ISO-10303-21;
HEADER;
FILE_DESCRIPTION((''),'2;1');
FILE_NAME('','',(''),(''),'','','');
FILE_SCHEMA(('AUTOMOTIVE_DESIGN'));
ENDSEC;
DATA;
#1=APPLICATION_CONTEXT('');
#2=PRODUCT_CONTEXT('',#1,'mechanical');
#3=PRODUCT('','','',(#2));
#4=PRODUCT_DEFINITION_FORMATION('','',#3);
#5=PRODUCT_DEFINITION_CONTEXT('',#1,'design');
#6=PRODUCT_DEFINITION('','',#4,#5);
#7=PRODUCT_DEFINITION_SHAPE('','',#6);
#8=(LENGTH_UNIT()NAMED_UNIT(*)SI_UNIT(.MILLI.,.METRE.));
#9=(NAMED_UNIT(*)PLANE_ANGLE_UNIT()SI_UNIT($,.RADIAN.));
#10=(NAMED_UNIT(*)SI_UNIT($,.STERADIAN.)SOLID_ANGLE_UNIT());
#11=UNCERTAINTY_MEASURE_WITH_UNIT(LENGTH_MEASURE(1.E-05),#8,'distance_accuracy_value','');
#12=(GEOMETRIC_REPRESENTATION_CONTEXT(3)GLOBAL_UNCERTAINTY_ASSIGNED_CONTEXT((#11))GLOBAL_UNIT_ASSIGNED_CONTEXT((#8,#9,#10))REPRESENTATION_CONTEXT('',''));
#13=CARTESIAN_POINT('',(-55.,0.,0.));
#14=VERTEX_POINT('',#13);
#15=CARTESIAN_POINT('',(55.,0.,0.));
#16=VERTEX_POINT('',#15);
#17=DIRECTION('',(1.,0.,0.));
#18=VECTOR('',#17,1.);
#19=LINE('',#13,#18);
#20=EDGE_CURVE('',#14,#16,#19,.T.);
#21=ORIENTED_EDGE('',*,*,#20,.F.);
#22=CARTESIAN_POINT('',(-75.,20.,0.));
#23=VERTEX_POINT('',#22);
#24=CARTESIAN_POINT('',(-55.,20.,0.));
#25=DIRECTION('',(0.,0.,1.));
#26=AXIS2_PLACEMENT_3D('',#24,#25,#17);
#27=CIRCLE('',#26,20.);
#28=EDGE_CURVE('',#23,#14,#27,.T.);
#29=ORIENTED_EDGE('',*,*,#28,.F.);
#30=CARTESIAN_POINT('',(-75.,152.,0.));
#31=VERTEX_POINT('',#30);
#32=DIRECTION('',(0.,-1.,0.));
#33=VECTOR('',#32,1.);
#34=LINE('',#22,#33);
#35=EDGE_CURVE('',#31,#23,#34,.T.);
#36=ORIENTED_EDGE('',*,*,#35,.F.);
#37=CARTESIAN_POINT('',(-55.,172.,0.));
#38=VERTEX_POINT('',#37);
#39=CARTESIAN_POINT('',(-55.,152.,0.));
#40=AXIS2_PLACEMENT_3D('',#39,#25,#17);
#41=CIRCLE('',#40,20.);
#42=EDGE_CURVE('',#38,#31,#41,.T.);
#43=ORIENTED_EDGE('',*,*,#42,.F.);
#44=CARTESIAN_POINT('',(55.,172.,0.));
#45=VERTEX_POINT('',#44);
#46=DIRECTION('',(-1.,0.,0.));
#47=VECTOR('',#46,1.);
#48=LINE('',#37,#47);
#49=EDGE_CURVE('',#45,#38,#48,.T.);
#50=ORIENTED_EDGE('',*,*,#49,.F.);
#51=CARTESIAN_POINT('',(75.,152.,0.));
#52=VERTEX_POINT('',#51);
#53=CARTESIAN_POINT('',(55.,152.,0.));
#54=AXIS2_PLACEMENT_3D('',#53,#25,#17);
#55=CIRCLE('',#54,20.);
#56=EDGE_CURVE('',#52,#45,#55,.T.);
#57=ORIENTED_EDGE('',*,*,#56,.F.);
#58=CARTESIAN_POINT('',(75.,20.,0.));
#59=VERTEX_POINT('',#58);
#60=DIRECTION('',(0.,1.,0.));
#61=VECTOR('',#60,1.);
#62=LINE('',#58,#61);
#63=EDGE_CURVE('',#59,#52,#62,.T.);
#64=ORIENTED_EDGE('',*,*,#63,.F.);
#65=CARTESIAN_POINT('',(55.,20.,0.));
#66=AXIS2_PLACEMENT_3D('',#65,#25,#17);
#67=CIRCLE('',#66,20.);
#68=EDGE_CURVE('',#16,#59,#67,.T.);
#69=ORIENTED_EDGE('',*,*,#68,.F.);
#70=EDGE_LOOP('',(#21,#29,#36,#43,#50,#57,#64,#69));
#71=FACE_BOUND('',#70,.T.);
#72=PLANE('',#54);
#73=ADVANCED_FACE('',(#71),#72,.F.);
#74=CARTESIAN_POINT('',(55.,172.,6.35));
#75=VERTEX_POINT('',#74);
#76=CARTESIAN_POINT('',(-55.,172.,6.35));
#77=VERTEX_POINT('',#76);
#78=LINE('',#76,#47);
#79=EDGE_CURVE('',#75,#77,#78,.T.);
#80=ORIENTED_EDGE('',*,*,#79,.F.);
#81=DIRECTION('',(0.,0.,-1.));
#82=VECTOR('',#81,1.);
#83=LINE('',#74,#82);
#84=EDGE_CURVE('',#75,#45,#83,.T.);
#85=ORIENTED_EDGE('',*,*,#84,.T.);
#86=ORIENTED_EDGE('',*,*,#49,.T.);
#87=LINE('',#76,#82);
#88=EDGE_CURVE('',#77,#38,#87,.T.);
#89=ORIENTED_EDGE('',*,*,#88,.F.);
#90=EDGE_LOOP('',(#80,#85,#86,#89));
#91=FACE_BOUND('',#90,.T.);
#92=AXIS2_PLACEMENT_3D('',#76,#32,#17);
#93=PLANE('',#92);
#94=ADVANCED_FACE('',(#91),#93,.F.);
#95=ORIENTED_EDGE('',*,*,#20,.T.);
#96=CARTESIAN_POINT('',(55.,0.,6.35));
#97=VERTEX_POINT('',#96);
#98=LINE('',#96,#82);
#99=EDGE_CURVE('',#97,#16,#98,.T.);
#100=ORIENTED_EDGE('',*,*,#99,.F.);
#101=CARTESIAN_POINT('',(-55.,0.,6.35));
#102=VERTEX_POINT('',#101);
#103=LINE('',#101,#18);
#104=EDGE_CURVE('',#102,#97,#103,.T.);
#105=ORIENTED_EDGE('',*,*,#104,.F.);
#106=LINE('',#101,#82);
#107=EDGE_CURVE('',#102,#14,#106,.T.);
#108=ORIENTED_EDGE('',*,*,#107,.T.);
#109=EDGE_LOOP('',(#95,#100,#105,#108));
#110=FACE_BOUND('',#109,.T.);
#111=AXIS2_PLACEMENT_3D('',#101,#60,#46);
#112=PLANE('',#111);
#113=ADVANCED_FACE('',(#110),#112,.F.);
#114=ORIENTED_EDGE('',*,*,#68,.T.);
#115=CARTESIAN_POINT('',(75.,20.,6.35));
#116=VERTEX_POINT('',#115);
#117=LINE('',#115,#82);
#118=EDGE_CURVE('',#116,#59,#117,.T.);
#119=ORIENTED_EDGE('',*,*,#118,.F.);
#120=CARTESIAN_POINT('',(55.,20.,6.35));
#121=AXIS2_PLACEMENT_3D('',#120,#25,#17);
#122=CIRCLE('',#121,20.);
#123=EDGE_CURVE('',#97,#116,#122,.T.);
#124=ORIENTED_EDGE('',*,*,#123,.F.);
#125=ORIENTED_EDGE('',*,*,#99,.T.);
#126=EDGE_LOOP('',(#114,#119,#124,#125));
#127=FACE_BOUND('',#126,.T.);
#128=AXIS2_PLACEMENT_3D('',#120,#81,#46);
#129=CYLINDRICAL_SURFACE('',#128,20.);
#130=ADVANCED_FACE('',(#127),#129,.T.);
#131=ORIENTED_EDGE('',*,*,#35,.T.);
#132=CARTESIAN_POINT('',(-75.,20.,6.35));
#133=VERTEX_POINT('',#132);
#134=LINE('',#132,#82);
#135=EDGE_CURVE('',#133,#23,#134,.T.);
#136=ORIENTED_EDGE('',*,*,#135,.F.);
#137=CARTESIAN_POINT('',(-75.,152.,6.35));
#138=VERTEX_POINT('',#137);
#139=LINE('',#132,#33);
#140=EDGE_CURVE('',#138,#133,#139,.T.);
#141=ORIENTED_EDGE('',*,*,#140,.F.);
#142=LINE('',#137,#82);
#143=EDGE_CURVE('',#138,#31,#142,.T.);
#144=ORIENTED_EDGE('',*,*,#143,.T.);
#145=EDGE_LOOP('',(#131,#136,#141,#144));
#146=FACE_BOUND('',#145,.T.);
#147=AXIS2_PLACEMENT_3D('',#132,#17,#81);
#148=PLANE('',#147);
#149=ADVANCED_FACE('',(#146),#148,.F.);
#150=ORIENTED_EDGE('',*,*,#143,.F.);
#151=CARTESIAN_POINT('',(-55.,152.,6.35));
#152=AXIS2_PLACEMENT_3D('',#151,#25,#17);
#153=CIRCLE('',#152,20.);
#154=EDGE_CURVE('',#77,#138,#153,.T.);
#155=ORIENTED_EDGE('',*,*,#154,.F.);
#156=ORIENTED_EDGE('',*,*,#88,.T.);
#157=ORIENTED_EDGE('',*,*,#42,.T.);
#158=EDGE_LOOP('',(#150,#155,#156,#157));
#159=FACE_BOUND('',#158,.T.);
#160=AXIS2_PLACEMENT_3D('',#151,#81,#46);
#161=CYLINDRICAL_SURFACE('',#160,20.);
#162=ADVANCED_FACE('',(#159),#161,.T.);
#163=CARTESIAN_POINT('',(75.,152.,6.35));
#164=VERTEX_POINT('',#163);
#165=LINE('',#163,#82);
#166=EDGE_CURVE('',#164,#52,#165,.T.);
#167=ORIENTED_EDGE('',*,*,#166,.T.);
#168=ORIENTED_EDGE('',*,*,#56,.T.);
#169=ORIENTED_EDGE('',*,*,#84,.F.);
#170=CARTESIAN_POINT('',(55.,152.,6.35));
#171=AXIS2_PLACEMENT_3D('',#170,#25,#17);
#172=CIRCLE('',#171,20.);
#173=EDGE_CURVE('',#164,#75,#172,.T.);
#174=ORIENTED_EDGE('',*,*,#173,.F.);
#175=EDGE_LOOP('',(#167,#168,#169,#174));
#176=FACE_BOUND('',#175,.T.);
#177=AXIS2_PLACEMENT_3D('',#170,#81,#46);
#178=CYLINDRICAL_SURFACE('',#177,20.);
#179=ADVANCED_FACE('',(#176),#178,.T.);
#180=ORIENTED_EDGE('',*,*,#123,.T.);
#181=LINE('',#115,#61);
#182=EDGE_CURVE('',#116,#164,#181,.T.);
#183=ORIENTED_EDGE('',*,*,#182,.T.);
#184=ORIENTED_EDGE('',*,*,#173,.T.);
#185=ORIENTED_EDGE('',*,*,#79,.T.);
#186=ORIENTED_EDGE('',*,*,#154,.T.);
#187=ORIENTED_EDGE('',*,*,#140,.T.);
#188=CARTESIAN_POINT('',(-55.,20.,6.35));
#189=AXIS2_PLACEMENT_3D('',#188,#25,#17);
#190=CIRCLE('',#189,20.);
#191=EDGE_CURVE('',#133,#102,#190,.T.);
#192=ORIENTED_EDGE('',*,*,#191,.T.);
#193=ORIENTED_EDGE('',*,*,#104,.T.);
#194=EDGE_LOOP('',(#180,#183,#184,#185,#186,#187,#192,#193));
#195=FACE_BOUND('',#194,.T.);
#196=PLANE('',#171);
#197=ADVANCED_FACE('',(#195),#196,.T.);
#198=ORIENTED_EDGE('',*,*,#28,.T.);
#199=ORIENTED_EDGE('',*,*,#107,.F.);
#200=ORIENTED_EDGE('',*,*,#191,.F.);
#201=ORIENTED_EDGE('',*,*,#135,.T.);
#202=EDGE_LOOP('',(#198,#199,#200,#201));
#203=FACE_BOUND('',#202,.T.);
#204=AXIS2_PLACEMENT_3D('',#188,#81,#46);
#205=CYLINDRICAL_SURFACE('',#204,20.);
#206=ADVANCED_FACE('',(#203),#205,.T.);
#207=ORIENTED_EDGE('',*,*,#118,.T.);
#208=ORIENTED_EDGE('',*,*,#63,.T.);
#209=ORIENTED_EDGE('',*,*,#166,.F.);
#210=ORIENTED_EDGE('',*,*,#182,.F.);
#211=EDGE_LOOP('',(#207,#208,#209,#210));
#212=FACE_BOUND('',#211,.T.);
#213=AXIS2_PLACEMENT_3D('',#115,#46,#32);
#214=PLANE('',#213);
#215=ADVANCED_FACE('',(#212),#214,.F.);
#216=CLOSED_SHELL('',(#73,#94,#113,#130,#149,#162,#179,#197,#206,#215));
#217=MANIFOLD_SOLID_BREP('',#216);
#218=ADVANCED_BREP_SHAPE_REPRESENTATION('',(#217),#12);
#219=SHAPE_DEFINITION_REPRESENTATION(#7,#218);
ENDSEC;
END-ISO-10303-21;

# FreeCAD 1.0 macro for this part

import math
import FreeCAD as App
import Part
import Sketcher
Q = App.Units.Quantity

doc = App.newDocument("Part")
params = doc.addObject("Spreadsheet::Sheet", "Params")
for row, (alias, value) in enumerate([
    ("sketch1_radius", "20 mm"),
    ("sketch1_width", "110 mm"),
    ("sketch1_height", "132 mm"),
    ("pad1_length", "6.35 mm"),
], start=1):
    params.set(f"A{row}", alias)
    params.set(f"B{row}", "=" + value)
    params.setAlias(f"B{row}", alias)

body = doc.addObject("PartDesign::Body", "Body")

# Sketch on XY plane
sketch1 = body.newObject("Sketcher::SketchObject", "Sketch")
sketch1.AttachmentSupport = (doc.getObject("XY_Plane"), [""])
sketch1.MapMode = "FlatFace"
sketch1.addGeometry([
    Part.LineSegment(App.Vector(-55, 0, 0), App.Vector(55, 0, 0)),  # 0
    Part.ArcOfCircle(Part.Circle(App.Vector(55, 20, 0), App.Vector(0, 0, 1), 20), math.radians(-90), math.radians(0)),  # 1
    Part.LineSegment(App.Vector(75, 20, 0), App.Vector(75, 152, 0)),  # 2
    Part.ArcOfCircle(Part.Circle(App.Vector(55, 152, 0), App.Vector(0, 0, 1), 20), math.radians(0), math.radians(90)),  # 3
    Part.LineSegment(App.Vector(55, 172, 0), App.Vector(-55, 172, 0)),  # 4
    Part.ArcOfCircle(Part.Circle(App.Vector(-55, 152, 0), App.Vector(0, 0, 1), 20), math.radians(90), math.radians(180)),  # 5
    Part.LineSegment(App.Vector(-75, 152, 0), App.Vector(-75, 20, 0)),  # 6
    Part.ArcOfCircle(Part.Circle(App.Vector(-55, 20, 0), App.Vector(0, 0, 1), 20), math.radians(180), math.radians(270)),  # 7
], False)
sketch1.addConstraint([
    Sketcher.Constraint("Tangent", 0, 2, 1, 1),
    Sketcher.Constraint("Tangent", 1, 2, 2, 1),
    Sketcher.Constraint("Tangent", 2, 2, 3, 1),
    Sketcher.Constraint("Tangent", 3, 2, 4, 1),
    Sketcher.Constraint("Tangent", 4, 2, 5, 1),
    Sketcher.Constraint("Tangent", 5, 2, 6, 1),
    Sketcher.Constraint("Tangent", 6, 2, 7, 1),
    Sketcher.Constraint("Tangent", 7, 2, 0, 1),
    Sketcher.Constraint("Horizontal", 0),
    Sketcher.Constraint("Vertical", 2),
    Sketcher.Constraint("Horizontal", 4),
    Sketcher.Constraint("Vertical", 6),
    Sketcher.Constraint("Equal", 1, 3),
    Sketcher.Constraint("Equal", 3, 5),
    Sketcher.Constraint("Equal", 5, 7),
    Sketcher.Constraint("Symmetric", 0, 2, 7, 2, -1, 1),
    Sketcher.Constraint("Radius", 1, Q("20 mm")),
    Sketcher.Constraint("DistanceX", 0, 1, 0, 2, Q("110 mm")),
    Sketcher.Constraint("DistanceY", 2, 1, 2, 2, Q("132 mm")),
])
sketch1.setExpression("Constraints[16]", "Params.sketch1_radius")
sketch1.setExpression("Constraints[17]", "Params.sketch1_width")
sketch1.setExpression("Constraints[18]", "Params.sketch1_height")
pad1 = body.newObject("PartDesign::Pad", "Pad")
pad1.Profile = sketch1
pad1.setExpression("Length", "Params.pad1_length")

doc.recompute()
